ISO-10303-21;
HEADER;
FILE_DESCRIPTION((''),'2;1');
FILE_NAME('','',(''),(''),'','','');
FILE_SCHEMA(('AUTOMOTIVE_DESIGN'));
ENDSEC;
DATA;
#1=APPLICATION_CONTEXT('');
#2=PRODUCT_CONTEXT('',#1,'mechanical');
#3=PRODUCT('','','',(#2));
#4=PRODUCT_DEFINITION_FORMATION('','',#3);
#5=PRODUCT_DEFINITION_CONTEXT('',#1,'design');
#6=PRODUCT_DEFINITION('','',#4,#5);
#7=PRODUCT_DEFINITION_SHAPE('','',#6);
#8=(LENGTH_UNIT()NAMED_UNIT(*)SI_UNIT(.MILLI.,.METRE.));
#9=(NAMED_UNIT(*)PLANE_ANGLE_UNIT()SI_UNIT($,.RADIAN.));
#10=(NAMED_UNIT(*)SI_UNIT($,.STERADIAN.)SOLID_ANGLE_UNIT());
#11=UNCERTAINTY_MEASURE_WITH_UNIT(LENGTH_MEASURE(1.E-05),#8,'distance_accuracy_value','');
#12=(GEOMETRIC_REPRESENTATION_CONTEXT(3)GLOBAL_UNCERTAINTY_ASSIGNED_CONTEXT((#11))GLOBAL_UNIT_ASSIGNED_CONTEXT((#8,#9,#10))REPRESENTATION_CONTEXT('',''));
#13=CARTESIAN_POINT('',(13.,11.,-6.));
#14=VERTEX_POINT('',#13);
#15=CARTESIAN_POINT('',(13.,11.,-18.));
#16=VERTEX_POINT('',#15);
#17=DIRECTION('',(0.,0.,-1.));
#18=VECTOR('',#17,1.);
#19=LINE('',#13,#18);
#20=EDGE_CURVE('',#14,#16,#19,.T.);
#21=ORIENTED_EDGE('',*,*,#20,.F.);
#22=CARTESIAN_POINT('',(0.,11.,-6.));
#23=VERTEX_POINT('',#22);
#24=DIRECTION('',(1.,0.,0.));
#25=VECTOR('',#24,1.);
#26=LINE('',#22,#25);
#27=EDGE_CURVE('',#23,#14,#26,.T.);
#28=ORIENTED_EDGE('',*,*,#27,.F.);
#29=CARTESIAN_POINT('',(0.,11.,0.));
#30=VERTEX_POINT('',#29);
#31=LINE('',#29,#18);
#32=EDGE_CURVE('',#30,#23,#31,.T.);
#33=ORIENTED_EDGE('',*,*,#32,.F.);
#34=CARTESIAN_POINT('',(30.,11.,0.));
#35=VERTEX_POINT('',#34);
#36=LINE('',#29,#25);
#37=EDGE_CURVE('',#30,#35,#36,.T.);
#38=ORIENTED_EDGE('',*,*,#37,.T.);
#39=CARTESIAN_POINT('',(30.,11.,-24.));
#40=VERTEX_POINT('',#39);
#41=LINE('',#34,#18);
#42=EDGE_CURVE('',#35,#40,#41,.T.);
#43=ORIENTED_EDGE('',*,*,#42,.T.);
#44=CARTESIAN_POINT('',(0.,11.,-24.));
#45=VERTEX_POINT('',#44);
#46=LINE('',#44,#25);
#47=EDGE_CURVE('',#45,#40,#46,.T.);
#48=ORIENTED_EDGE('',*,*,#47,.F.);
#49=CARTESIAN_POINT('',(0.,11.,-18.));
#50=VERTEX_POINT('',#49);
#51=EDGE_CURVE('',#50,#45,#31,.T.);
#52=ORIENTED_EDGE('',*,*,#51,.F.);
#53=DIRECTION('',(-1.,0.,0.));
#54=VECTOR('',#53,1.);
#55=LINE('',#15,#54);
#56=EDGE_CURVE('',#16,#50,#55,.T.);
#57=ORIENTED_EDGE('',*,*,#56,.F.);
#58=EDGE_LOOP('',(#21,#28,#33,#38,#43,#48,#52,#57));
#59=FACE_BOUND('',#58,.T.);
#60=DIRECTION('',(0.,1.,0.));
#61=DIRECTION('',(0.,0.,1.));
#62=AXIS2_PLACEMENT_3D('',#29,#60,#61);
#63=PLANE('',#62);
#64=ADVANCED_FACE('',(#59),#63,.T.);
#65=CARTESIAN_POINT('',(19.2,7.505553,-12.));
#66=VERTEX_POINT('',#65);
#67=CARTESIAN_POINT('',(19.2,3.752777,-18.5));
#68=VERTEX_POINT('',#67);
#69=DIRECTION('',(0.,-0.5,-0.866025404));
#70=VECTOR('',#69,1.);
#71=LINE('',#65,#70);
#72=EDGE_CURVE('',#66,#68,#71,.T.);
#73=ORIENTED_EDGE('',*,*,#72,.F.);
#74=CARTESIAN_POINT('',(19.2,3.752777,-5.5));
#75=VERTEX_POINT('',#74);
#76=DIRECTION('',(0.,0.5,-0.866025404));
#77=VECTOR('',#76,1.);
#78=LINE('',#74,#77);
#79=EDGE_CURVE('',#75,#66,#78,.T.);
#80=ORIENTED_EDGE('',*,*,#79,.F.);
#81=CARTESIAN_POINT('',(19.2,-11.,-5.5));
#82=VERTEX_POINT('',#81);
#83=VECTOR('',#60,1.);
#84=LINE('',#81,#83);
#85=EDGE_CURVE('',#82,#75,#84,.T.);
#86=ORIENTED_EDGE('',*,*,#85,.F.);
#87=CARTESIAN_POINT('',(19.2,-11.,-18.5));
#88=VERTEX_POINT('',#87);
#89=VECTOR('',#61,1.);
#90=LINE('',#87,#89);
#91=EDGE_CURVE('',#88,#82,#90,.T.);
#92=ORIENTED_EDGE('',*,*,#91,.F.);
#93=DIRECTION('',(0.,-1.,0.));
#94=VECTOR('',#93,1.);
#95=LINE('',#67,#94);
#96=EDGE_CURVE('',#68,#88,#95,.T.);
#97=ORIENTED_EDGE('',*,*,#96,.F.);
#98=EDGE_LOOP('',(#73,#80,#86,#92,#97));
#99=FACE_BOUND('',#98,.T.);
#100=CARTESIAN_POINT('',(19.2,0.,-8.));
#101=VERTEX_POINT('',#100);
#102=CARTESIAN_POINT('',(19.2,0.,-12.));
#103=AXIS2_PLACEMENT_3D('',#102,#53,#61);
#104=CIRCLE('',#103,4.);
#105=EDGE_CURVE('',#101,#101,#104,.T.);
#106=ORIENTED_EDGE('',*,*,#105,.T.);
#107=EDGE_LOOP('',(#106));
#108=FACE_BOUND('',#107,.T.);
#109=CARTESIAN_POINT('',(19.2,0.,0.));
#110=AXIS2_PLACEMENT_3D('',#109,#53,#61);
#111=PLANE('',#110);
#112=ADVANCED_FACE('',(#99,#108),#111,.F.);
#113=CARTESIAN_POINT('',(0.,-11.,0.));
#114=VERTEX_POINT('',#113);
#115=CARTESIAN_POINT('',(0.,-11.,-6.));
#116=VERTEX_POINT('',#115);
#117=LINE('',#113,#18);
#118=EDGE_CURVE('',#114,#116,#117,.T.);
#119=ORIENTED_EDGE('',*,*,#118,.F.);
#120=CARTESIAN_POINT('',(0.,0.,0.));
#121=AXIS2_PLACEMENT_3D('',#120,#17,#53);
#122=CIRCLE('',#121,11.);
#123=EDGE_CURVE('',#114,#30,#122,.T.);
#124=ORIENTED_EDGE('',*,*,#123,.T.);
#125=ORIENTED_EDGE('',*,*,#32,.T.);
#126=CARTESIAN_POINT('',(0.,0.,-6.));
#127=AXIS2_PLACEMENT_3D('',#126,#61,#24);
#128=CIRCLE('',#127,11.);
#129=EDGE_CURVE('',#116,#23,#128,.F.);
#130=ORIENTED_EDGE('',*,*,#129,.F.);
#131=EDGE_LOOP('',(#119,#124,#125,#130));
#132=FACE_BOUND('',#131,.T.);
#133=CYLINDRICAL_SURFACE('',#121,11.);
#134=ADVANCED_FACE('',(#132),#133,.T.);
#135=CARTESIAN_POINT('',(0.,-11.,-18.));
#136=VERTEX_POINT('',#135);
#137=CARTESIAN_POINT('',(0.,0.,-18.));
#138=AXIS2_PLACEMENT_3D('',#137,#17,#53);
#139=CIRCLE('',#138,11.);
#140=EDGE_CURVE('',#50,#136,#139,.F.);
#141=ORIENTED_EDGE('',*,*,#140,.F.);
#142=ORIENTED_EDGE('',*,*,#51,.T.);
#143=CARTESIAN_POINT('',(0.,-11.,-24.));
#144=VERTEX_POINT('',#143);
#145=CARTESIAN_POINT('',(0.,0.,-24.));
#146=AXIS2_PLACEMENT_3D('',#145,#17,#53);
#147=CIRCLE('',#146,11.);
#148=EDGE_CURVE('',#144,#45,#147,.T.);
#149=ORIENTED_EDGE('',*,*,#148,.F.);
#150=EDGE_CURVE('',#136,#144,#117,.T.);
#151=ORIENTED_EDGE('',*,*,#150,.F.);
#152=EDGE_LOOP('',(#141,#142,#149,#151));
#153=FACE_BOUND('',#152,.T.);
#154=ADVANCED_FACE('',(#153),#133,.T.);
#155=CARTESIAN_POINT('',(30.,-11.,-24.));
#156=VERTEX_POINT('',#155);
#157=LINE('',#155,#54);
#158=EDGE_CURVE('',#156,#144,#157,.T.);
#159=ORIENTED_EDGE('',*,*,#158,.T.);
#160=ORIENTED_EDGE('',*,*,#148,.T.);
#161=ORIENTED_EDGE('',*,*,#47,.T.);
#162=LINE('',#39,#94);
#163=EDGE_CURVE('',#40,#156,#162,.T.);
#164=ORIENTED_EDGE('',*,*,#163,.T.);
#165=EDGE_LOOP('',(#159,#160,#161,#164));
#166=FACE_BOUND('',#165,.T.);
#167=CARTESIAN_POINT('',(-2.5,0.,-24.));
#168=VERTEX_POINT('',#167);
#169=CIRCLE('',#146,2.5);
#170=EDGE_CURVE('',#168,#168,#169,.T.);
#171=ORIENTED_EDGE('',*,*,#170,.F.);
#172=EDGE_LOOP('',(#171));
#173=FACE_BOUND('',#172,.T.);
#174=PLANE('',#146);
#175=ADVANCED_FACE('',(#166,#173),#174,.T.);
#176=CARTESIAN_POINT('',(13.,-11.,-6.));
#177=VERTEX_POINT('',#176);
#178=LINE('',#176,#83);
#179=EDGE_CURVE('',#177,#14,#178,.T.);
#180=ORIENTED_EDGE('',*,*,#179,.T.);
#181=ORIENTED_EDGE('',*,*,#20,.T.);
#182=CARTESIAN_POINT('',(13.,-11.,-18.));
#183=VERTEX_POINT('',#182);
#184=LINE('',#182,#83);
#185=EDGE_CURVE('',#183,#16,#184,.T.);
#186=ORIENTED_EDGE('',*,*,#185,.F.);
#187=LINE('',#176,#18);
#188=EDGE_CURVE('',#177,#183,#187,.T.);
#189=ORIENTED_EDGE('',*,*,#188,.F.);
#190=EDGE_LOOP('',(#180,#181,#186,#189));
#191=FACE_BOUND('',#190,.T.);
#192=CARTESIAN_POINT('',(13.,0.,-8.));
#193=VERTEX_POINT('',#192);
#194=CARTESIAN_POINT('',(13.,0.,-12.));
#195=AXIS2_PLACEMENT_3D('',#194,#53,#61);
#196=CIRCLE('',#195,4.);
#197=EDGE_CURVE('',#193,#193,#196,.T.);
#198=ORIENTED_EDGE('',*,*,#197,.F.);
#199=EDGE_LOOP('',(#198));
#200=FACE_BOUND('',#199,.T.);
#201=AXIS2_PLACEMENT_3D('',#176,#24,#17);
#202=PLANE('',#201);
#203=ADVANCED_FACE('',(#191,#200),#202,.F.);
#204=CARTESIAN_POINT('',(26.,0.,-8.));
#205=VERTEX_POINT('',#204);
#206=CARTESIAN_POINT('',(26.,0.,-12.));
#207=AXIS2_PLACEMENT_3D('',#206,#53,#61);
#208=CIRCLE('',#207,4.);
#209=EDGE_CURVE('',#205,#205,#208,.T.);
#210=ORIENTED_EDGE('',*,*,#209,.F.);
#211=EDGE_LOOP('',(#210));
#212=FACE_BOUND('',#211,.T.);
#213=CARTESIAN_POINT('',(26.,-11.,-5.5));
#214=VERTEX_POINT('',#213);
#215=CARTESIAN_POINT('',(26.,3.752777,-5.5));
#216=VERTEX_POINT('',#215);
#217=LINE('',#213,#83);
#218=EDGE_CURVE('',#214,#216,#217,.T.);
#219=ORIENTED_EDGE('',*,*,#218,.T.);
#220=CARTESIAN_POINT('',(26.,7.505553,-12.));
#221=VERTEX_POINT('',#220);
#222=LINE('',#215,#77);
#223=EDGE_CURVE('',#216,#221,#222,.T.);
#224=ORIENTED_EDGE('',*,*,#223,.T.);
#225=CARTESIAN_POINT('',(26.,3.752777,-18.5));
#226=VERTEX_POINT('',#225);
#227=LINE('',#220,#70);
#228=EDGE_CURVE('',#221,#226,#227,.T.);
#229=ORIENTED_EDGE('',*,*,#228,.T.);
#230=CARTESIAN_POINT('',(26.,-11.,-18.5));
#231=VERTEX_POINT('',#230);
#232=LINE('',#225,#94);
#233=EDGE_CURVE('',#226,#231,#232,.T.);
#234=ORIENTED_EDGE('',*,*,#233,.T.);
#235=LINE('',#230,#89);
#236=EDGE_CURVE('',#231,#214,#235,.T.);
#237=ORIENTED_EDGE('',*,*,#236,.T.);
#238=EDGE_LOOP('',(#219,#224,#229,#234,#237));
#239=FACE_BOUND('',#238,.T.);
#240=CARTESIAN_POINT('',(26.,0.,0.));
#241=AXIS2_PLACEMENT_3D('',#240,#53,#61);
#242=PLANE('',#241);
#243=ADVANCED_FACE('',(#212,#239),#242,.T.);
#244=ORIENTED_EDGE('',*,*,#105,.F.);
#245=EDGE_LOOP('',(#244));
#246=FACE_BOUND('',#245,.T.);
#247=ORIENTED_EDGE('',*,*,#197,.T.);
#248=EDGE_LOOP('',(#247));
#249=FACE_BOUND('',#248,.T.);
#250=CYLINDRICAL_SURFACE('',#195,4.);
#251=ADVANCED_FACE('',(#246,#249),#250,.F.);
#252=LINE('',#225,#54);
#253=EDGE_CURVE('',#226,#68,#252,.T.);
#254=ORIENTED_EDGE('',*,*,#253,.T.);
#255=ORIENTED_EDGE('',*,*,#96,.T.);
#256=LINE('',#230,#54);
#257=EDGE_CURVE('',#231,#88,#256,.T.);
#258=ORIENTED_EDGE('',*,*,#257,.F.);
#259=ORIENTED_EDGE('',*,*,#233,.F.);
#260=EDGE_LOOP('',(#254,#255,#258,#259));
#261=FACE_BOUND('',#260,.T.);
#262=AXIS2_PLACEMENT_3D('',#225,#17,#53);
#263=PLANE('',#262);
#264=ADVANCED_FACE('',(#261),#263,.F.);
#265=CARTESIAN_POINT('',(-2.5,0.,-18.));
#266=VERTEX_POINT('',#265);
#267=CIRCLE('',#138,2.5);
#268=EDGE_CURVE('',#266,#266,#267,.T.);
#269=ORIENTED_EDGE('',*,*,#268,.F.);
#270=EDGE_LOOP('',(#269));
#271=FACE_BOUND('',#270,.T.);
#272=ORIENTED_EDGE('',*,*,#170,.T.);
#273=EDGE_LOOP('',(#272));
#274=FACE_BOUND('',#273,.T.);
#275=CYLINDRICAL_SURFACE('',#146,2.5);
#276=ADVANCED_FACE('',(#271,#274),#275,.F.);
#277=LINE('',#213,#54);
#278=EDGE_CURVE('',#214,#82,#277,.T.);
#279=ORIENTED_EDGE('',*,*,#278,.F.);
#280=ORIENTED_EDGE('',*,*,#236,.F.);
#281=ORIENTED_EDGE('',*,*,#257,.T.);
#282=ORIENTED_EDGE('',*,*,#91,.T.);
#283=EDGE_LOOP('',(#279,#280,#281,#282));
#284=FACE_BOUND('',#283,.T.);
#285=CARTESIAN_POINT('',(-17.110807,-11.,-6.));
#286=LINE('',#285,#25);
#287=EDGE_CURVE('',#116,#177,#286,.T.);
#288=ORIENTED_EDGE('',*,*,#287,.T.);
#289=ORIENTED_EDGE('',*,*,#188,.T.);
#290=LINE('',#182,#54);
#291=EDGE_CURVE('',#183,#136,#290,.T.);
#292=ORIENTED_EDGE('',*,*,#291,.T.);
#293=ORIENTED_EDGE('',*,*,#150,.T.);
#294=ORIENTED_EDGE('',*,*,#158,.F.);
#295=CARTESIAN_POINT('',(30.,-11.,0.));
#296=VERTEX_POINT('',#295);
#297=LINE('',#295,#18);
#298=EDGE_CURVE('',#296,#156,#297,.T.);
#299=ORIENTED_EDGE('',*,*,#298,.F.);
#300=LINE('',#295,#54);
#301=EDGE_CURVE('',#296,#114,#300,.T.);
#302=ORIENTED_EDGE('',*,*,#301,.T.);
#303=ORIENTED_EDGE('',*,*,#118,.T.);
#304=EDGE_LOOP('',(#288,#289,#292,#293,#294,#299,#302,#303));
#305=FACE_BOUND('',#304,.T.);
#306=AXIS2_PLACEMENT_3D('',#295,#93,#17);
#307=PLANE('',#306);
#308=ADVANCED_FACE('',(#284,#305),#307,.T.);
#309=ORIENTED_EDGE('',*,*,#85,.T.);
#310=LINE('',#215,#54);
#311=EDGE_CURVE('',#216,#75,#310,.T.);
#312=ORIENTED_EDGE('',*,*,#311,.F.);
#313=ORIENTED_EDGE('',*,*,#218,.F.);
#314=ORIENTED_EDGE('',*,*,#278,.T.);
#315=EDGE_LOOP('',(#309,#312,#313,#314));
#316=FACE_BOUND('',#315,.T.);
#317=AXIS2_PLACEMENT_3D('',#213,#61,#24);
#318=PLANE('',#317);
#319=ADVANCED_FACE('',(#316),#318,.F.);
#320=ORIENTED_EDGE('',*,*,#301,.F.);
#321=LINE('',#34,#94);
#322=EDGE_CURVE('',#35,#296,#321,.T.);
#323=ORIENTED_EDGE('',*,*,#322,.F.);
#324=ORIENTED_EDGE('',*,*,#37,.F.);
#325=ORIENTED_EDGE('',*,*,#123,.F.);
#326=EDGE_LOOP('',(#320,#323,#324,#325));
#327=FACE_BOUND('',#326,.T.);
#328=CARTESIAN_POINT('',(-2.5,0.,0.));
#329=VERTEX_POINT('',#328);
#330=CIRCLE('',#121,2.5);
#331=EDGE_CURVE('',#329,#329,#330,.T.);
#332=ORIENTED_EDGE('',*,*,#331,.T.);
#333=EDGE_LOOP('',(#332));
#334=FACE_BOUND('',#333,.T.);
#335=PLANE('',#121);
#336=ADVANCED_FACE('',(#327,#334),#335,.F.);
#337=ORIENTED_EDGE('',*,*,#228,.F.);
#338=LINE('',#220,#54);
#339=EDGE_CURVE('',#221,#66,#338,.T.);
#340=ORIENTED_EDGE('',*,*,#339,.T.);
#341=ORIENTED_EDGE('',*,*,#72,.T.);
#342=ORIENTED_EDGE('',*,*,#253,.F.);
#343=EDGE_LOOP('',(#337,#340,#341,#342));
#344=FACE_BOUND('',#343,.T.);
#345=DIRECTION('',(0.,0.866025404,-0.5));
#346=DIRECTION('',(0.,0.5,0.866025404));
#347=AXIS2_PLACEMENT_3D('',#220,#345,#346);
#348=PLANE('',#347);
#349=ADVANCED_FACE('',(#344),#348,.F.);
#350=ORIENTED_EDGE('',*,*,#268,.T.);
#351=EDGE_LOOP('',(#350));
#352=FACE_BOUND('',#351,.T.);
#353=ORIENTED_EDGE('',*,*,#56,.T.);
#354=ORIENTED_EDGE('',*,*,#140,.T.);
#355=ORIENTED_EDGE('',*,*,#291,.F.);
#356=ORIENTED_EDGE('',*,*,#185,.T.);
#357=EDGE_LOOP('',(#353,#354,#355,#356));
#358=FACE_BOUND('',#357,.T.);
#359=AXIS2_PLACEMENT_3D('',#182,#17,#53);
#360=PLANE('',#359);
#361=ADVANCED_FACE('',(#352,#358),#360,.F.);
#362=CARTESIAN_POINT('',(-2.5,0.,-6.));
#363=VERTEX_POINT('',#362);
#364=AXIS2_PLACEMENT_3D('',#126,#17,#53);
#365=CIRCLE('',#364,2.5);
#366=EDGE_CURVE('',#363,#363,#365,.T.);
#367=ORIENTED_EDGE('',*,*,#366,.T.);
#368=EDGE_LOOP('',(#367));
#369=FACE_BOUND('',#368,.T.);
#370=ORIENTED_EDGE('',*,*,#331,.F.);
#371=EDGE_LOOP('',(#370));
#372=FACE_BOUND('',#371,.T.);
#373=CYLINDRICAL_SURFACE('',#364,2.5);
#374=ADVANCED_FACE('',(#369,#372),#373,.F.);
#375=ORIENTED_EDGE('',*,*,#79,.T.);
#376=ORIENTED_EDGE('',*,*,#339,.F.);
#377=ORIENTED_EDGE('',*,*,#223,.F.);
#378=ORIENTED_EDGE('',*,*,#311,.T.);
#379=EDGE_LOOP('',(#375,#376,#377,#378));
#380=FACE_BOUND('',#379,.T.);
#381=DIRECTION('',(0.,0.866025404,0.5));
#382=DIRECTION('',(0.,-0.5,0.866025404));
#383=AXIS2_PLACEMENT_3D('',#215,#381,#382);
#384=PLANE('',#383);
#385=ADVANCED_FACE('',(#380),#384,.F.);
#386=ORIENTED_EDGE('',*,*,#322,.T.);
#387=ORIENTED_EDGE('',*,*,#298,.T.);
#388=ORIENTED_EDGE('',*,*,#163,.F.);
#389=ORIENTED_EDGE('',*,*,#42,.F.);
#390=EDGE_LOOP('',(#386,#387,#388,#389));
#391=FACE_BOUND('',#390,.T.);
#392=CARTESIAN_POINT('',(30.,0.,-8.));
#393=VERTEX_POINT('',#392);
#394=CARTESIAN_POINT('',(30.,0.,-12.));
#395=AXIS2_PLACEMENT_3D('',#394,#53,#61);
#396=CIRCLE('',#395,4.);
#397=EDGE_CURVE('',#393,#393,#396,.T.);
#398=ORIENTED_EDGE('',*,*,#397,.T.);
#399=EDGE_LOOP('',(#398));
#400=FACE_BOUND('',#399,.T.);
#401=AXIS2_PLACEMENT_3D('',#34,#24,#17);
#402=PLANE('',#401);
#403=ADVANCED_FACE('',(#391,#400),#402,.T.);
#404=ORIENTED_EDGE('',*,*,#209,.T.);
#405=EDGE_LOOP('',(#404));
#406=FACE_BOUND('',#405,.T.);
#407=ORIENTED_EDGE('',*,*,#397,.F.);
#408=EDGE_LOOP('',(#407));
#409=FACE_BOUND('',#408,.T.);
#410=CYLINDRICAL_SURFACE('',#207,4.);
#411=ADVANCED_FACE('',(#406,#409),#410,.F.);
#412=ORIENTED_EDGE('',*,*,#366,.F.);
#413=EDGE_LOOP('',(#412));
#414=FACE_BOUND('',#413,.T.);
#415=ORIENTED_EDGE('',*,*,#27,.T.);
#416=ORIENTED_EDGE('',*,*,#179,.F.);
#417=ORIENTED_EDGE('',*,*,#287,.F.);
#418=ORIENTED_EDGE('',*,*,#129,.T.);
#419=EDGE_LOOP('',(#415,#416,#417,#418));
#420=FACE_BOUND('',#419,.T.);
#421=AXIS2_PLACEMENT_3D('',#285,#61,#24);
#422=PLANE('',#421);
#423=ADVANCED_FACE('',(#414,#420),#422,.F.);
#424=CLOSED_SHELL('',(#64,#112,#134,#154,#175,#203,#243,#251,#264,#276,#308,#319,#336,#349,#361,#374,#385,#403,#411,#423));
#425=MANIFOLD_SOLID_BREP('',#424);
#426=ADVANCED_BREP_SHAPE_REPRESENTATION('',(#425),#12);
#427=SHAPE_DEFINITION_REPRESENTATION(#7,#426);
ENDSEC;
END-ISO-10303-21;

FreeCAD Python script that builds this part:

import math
import FreeCAD as App
import Part
import Sketcher
Q = App.Units.Quantity


def add_polygon(sketch, points):
    """Adds a closed chain of lines whose ends are joined by coincident constraints."""
    first, n = sketch.GeometryCount, len(points)
    for a, b in zip(points, points[1:] + points[:1]):
        sketch.addGeometry(Part.LineSegment(App.Vector(*a, 0), App.Vector(*b, 0)), False)
    for i in range(n):
        sketch.addConstraint(Sketcher.Constraint("Coincident", first + i, 2, first + (i + 1) % n, 1))

doc = App.newDocument("Part")
body = doc.addObject("PartDesign::Body", "Body")

sketch1 = body.newObject("Sketcher::SketchObject", "Sketch")
sketch1.AttachmentSupport = (doc.getObject("XY_Plane"), [""])
sketch1.MapMode = "FlatFace"
sketch1.AttachmentOffset = App.Placement(App.Vector(0, 0, -24), App.Rotation())
sketch1.addGeometry([
    Part.LineSegment(App.Vector(0, 11, 0), App.Vector(30, 11, 0)),
    Part.LineSegment(App.Vector(30, 11, 0), App.Vector(30, -11, 0)),
    Part.LineSegment(App.Vector(30, -11, 0), App.Vector(0, -11, 0)),
    Part.ArcOfCircle(Part.Circle(App.Vector(0, 0, 0), App.Vector(0, 0, 1), 11), math.radians(90), math.radians(270)),
], False)
sketch1.addConstraint([
    Sketcher.Constraint("Coincident", 0, 2, 1, 1),
    Sketcher.Constraint("Coincident", 1, 2, 2, 1),
    Sketcher.Constraint("Tangent", 2, 2, 3, 2),
    Sketcher.Constraint("Tangent", 3, 1, 0, 1),
    Sketcher.Constraint("Horizontal", 0),
    Sketcher.Constraint("Vertical", 1),
    Sketcher.Constraint("Horizontal", 2),
    Sketcher.Constraint("Coincident", 3, 3, -1, 1),
    Sketcher.Constraint("Radius", 3, 11.0),
    Sketcher.Constraint("DistanceX", 0, 1, 0, 2, 30.0),
])
pad1 = body.newObject("PartDesign::Pad", "Pad")
pad1.Profile = sketch1
pad1.Length = 24

sketch2 = body.newObject("Sketcher::SketchObject", "Sketch001")
sketch2.AttachmentSupport = (doc.getObject("XZ_Plane"), [""])
sketch2.MapMode = "FlatFace"
sketch2.AttachmentOffset = App.Placement(App.Vector(0, 0, -11), App.Rotation())
add_polygon(sketch2, [(13, -6), (13, -18), (-17.110807, -18), (-17.110807, -6)])
sketch2.addConstraint([
    Sketcher.Constraint("Vertical", 0),
    Sketcher.Constraint("Horizontal", 1),
    Sketcher.Constraint("Vertical", 2),
    Sketcher.Constraint("Horizontal", 3),
    Sketcher.Constraint("DistanceY", 0, 2, 0, 1, 12.0),
    Sketcher.Constraint("DistanceX", -1, 1, 0, 2, 13.0),
    Sketcher.Constraint("DistanceY", 0, 2, -1, 1, 18.0),
    Sketcher.Constraint("DistanceX", 1, 2, 1, 1, 30.110807),
])
pocket1 = body.newObject("PartDesign::Pocket", "Pocket")
pocket1.Profile = sketch2
pocket1.Type = "ThroughAll"
pocket1.Reversed = True

sketch3 = body.newObject("Sketcher::SketchObject", "Sketch002")
sketch3.AttachmentSupport = (doc.getObject("YZ_Plane"), [""])
sketch3.MapMode = "FlatFace"
sketch3.AttachmentOffset = App.Placement(App.Vector(0, 0, 19.2), App.Rotation())
add_polygon(sketch3, [(-11, -18.5), (-11, -5.5), (3.752777, -5.5), (7.505553, -12), (3.752777, -18.5)])
sketch3.addConstraint([
    Sketcher.Constraint("Vertical", 0),
    Sketcher.Constraint("Horizontal", 1),
    Sketcher.Constraint("Horizontal", 4),
    Sketcher.Constraint("Vertical", 1, 2, 3, 2),
    Sketcher.Constraint("Equal", 2, 3),
    Sketcher.Constraint("DistanceY", 0, 1, 0, 2, 13.0),
    Sketcher.Constraint("Angle", 2, Q("-60 deg")),
    Sketcher.Constraint("DistanceX", 0, 2, -1, 1, 11.0),
    Sketcher.Constraint("DistanceY", 2, 2, -1, 1, 12.0),
    Sketcher.Constraint("DistanceX", 1, 1, 1, 2, 14.752777),
])
pocket2 = body.newObject("PartDesign::Pocket", "Pocket001")
pocket2.Profile = sketch3
pocket2.Length = 6.8
pocket2.Reversed = True

sketch4 = body.newObject("Sketcher::SketchObject", "Sketch003")
sketch4.AttachmentSupport = (doc.getObject("YZ_Plane"), [""])
sketch4.MapMode = "FlatFace"
sketch4.AttachmentOffset = App.Placement(App.Vector(0, 0, 13), App.Rotation())
sketch4.addGeometry(Part.Circle(App.Vector(0, -12, 0), App.Vector(0, 0, 1), 4), False)
sketch4.addConstraint([
    Sketcher.Constraint("PointOnObject", 0, 3, -2),
    Sketcher.Constraint("Diameter", 0, 8.0),
    Sketcher.Constraint("DistanceY", 0, 3, -1, 1, 12.0),
])
doc.recompute()
hole = body.newObject("PartDesign::Hole", "Hole")
hole.Profile = sketch4
hole.ThreadType = "None"
hole.Diameter = 8
hole.DepthType = "Dimension"
hole.Depth = 6.2
hole.DrillPoint = "Flat"
hole.Reversed = True

sketch5 = body.newObject("Sketcher::SketchObject", "Sketch004")
sketch5.AttachmentSupport = (doc.getObject("YZ_Plane"), [""])
sketch5.MapMode = "FlatFace"
sketch5.AttachmentOffset = App.Placement(App.Vector(0, 0, 26), App.Rotation())
sketch5.addGeometry(Part.Circle(App.Vector(0, -12, 0), App.Vector(0, 0, 1), 4), False)
sketch5.addConstraint([
    Sketcher.Constraint("PointOnObject", 0, 3, -2),
    Sketcher.Constraint("Diameter", 0, 8.0),
    Sketcher.Constraint("DistanceY", 0, 3, -1, 1, 12.0),
])
doc.recompute()
hole2 = body.newObject("PartDesign::Hole", "Hole001")
hole2.Profile = sketch5
hole2.ThreadType = "None"
hole2.Diameter = 8
hole2.DepthType = "ThroughAll"
hole2.Reversed = True

sketch6 = body.newObject("Sketcher::SketchObject", "Sketch005")
sketch6.AttachmentSupport = (doc.getObject("XY_Plane"), [""])
sketch6.MapMode = "FlatFace"
sketch6.AttachmentOffset = App.Placement(App.Vector(0, 0, -24), App.Rotation())
sketch6.addGeometry(Part.Circle(App.Vector(0, 0, 0), App.Vector(0, 0, 1), 2.5), False)
sketch6.addConstraint([
    Sketcher.Constraint("Coincident", 0, 3, -1, 1),
    Sketcher.Constraint("Diameter", 0, 5.0),
])
doc.recompute()
hole3 = body.newObject("PartDesign::Hole", "Hole002")
hole3.Profile = sketch6
hole3.ThreadType = "None"
hole3.Diameter = 5
hole3.DepthType = "Dimension"
hole3.Depth = 6
hole3.DrillPoint = "Flat"
hole3.Reversed = True

sketch7 = body.newObject("Sketcher::SketchObject", "Sketch006")
sketch7.AttachmentSupport = (doc.getObject("XY_Plane"), [""])
sketch7.MapMode = "FlatFace"
sketch7.AttachmentOffset = App.Placement(App.Vector(0, 0, -6), App.Rotation())
sketch7.addGeometry(Part.Circle(App.Vector(0, 0, 0), App.Vector(0, 0, 1), 2.5), False)
sketch7.addConstraint([
    Sketcher.Constraint("Coincident", 0, 3, -1, 1),
    Sketcher.Constraint("Diameter", 0, 5.0),
])
doc.recompute()
hole4 = body.newObject("PartDesign::Hole", "Hole003")
hole4.Profile = sketch7
hole4.ThreadType = "None"
hole4.Diameter = 5
hole4.DepthType = "ThroughAll"
hole4.Reversed = True

doc.recompute()
